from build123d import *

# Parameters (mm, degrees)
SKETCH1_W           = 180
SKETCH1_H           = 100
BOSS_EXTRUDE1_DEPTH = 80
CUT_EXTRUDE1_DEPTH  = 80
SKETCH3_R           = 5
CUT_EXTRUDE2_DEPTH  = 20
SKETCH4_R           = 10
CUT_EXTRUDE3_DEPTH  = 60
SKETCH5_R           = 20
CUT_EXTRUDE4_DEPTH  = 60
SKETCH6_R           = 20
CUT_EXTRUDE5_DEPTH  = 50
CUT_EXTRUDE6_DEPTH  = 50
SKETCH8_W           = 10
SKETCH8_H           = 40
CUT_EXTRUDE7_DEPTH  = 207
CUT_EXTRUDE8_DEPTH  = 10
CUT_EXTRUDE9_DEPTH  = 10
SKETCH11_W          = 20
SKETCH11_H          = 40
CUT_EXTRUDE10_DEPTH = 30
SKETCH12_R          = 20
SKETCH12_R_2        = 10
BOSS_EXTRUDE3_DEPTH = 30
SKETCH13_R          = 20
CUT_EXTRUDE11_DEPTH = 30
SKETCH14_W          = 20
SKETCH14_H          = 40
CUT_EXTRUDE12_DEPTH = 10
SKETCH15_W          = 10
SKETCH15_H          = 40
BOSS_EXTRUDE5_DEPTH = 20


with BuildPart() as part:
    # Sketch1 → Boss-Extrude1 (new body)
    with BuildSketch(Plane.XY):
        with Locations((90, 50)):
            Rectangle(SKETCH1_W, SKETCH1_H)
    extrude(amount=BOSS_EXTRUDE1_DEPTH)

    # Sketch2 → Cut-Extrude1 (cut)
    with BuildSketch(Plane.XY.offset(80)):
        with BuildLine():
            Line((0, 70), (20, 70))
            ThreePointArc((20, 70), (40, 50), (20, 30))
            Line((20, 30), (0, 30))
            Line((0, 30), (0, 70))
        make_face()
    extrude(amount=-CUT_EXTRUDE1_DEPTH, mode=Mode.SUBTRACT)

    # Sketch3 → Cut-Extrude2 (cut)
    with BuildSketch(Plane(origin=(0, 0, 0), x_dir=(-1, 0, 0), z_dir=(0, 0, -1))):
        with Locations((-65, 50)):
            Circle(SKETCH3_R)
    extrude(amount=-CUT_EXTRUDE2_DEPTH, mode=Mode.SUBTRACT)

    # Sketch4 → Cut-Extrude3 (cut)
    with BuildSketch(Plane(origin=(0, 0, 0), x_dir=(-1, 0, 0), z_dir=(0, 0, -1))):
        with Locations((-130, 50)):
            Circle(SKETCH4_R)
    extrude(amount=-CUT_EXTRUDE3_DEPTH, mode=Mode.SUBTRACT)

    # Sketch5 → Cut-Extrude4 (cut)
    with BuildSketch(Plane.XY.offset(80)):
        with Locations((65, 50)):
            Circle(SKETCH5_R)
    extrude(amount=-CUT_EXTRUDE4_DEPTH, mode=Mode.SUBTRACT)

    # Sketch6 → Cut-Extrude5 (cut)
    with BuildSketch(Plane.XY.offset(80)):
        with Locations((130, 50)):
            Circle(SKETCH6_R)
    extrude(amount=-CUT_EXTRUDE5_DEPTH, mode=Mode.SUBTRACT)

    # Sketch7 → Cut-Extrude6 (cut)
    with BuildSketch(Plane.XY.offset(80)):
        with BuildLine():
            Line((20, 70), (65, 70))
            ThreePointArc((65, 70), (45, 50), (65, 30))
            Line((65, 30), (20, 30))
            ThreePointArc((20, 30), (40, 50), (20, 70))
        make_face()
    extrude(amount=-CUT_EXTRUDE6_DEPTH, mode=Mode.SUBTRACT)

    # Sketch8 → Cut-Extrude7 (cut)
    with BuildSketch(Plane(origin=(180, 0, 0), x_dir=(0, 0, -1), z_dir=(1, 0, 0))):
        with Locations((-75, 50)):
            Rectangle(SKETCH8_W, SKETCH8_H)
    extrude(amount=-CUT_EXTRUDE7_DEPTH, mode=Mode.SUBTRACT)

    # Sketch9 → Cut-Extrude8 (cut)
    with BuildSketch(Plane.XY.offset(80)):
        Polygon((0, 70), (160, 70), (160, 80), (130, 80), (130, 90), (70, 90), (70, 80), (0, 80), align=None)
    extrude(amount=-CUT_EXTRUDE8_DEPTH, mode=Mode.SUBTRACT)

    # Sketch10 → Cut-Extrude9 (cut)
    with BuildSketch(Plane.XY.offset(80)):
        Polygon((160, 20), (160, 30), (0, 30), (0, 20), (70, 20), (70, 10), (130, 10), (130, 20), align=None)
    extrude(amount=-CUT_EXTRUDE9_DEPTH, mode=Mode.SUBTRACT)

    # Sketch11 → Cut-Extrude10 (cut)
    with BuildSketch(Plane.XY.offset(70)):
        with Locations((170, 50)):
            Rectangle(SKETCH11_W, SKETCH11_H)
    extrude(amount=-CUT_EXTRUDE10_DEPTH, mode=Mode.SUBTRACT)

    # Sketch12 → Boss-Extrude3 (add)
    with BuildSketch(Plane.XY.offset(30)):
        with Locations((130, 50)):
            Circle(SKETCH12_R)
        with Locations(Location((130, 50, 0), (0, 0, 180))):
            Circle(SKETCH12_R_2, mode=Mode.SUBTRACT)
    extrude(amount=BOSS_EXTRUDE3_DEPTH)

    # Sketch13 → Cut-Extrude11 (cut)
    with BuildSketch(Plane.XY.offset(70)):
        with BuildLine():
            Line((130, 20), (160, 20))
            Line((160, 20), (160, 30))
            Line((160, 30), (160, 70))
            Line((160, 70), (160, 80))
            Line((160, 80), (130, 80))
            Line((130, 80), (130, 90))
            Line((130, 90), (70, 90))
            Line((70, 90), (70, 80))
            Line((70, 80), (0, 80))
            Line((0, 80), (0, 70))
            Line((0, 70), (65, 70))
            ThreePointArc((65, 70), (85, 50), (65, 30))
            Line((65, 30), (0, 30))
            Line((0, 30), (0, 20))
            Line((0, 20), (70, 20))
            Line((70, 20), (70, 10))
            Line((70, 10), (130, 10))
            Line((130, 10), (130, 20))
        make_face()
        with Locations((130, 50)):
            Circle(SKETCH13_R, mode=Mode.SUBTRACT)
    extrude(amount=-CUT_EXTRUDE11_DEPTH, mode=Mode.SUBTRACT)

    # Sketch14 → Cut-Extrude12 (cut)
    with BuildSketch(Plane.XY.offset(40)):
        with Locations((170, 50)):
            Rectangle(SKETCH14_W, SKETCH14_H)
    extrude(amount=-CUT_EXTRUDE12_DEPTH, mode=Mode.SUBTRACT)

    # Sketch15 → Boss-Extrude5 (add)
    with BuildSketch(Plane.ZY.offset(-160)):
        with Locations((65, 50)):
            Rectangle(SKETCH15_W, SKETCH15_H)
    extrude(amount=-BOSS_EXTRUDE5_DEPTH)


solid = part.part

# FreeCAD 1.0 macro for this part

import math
import FreeCAD as App
import Part
import Sketcher
from FreeCAD import Vector

doc = App.newDocument("Part")
body = doc.addObject("PartDesign::Body", "Body")

sketch1 = doc.addObject("Sketcher::SketchObject", "Sketch")
body.addObject(sketch1)
sketch1.AttachmentSupport = (doc.XY_Plane, [""])
sketch1.MapMode = "FlatFace"
sketch1.addGeometry([
    Part.LineSegment(Vector(0, 100, 0), Vector(0, 0, 0)),
    Part.LineSegment(Vector(0, 0, 0), Vector(180, 0, 0)),
    Part.LineSegment(Vector(180, 0, 0), Vector(180, 100, 0)),
    Part.LineSegment(Vector(180, 100, 0), Vector(0, 100, 0)),
], False)
sketch1.addConstraint([
    Sketcher.Constraint("Coincident", 0, 2, 1, 1),
    Sketcher.Constraint("Coincident", 1, 2, 2, 1),
    Sketcher.Constraint("Coincident", 2, 2, 3, 1),
    Sketcher.Constraint("Coincident", 3, 2, 0, 1),
    Sketcher.Constraint("Vertical", 0),
    Sketcher.Constraint("Horizontal", 1),
    Sketcher.Constraint("Vertical", 2),
    Sketcher.Constraint("Horizontal", 3),
    Sketcher.Constraint("Coincident", 0, 2, -1, 1),
    Sketcher.Constraint("DistanceX", 1, 1, 1, 2, 180.0),
    Sketcher.Constraint("DistanceY", 0, 2, 0, 1, 100.0),
])
pad1 = doc.addObject("PartDesign::Pad", "Pad")
body.addObject(pad1)
pad1.Profile = sketch1
pad1.Length = 80

sketch2 = doc.addObject("Sketcher::SketchObject", "Sketch001")
body.addObject(sketch2)
sketch2.AttachmentSupport = (doc.XY_Plane, [""])
sketch2.MapMode = "FlatFace"
sketch2.AttachmentOffset = App.Placement(Vector(0, 0, 80), App.Rotation())
sketch2.addGeometry([
    Part.LineSegment(Vector(20, 70, 0), Vector(0, 70, 0)),
    Part.LineSegment(Vector(0, 70, 0), Vector(0, 30, 0)),
    Part.LineSegment(Vector(0, 30, 0), Vector(20, 30, 0)),
    Part.ArcOfCircle(Part.Circle(Vector(20, 50, 0), Vector(0, 0, 1), 20), math.radians(-90), math.radians(90)),
], False)
sketch2.addConstraint([
    Sketcher.Constraint("Coincident", 0, 2, 1, 1),
    Sketcher.Constraint("Coincident", 1, 2, 2, 1),
    Sketcher.Constraint("Tangent", 2, 2, 3, 1),
    Sketcher.Constraint("Tangent", 3, 2, 0, 1),
    Sketcher.Constraint("Horizontal", 0),
    Sketcher.Constraint("Vertical", 1),
    Sketcher.Constraint("Horizontal", 2),
    Sketcher.Constraint("PointOnObject", 0, 2, -2),
    Sketcher.Constraint("Radius", 3, 20.0),
    Sketcher.Constraint("DistanceX", 0, 2, 0, 1, 20.0),
    Sketcher.Constraint("DistanceY", -1, 1, 3, 3, 50.0),
])
pocket1 = doc.addObject("PartDesign::Pocket", "Pocket")
body.addObject(pocket1)
pocket1.Profile = sketch2
pocket1.Length = 80

sketch3 = doc.addObject("Sketcher::SketchObject", "Sketch002")
body.addObject(sketch3)
sketch3.AttachmentSupport = (doc.XY_Plane, [""])
sketch3.MapMode = "FlatFace"
sketch3.addGeometry(Part.Circle(Vector(65, 50, 0), Vector(0, 0, 1), 5), False)
sketch3.addConstraint([
    Sketcher.Constraint("Diameter", 0, 10.0),
    Sketcher.Constraint("DistanceX", -1, 1, 0, 3, 65.0),
    Sketcher.Constraint("DistanceY", -1, 1, 0, 3, 50.0),
])
pocket2 = doc.addObject("PartDesign::Pocket", "Pocket001")
body.addObject(pocket2)
pocket2.Profile = sketch3
pocket2.Length = 20
pocket2.Reversed = True

sketch4 = doc.addObject("Sketcher::SketchObject", "Sketch003")
body.addObject(sketch4)
sketch4.AttachmentSupport = (doc.XY_Plane, [""])
sketch4.MapMode = "FlatFace"
sketch4.addGeometry(Part.Circle(Vector(130, 50, 0), Vector(0, 0, 1), 10), False)
sketch4.addConstraint([
    Sketcher.Constraint("Diameter", 0, 20.0),
    Sketcher.Constraint("DistanceX", -1, 1, 0, 3, 130.0),
    Sketcher.Constraint("DistanceY", -1, 1, 0, 3, 50.0),
])
pocket3 = doc.addObject("PartDesign::Pocket", "Pocket002")
body.addObject(pocket3)
pocket3.Profile = sketch4
pocket3.Length = 60
pocket3.Reversed = True

sketch5 = doc.addObject("Sketcher::SketchObject", "Sketch004")
body.addObject(sketch5)
sketch5.AttachmentSupport = (doc.XY_Plane, [""])
sketch5.MapMode = "FlatFace"
sketch5.AttachmentOffset = App.Placement(Vector(0, 0, 80), App.Rotation())
sketch5.addGeometry(Part.Circle(Vector(65, 50, 0), Vector(0, 0, 1), 20), False)
sketch5.addConstraint([
    Sketcher.Constraint("Diameter", 0, 40.0),
    Sketcher.Constraint("DistanceX", -1, 1, 0, 3, 65.0),
    Sketcher.Constraint("DistanceY", -1, 1, 0, 3, 50.0),
])
pocket4 = doc.addObject("PartDesign::Pocket", "Pocket003")
body.addObject(pocket4)
pocket4.Profile = sketch5
pocket4.Length = 60

sketch6 = doc.addObject("Sketcher::SketchObject", "Sketch005")
body.addObject(sketch6)
sketch6.AttachmentSupport = (doc.XY_Plane, [""])
sketch6.MapMode = "FlatFace"
sketch6.AttachmentOffset = App.Placement(Vector(0, 0, 80), App.Rotation())
sketch6.addGeometry(Part.Circle(Vector(130, 50, 0), Vector(0, 0, 1), 20), False)
sketch6.addConstraint([
    Sketcher.Constraint("Diameter", 0, 40.0),
    Sketcher.Constraint("DistanceX", -1, 1, 0, 3, 130.0),
    Sketcher.Constraint("DistanceY", -1, 1, 0, 3, 50.0),
])
pocket5 = doc.addObject("PartDesign::Pocket", "Pocket004")
body.addObject(pocket5)
pocket5.Profile = sketch6
pocket5.Length = 50

sketch7 = doc.addObject("Sketcher::SketchObject", "Sketch006")
body.addObject(sketch7)
sketch7.AttachmentSupport = (doc.XY_Plane, [""])
sketch7.MapMode = "FlatFace"
sketch7.AttachmentOffset = App.Placement(Vector(0, 0, 80), App.Rotation())
sketch7.addGeometry([
    Part.LineSegment(Vector(65, 70, 0), Vector(20, 70, 0)),
    Part.ArcOfCircle(Part.Circle(Vector(20, 50, 0), Vector(0, 0, 1), 20), math.radians(-90), math.radians(90)),
    Part.LineSegment(Vector(20, 30, 0), Vector(65, 30, 0)),
    Part.ArcOfCircle(Part.Circle(Vector(65, 50, 0), Vector(0, 0, 1), 20), math.radians(90), math.radians(270)),
], False)
sketch7.addConstraint([
    Sketcher.Constraint("Tangent", 0, 2, 1, 2),
    Sketcher.Constraint("Tangent", 1, 1, 2, 1),
    Sketcher.Constraint("Tangent", 2, 2, 3, 2),
    Sketcher.Constraint("Tangent", 3, 1, 0, 1),
    Sketcher.Constraint("Horizontal", 0),
    Sketcher.Constraint("Horizontal", 2),
    Sketcher.Constraint("Radius", 1, 20.0),
    Sketcher.Constraint("DistanceX", 0, 2, 0, 1, 45.0),
    Sketcher.Constraint("DistanceX", -1, 1, 1, 3, 20.0),
    Sketcher.Constraint("DistanceY", -1, 1, 1, 3, 50.0),
])
pocket6 = doc.addObject("PartDesign::Pocket", "Pocket005")
body.addObject(pocket6)
pocket6.Profile = sketch7
pocket6.Length = 50

sketch8 = doc.addObject("Sketcher::SketchObject", "Sketch007")
body.addObject(sketch8)
sketch8.AttachmentSupport = (doc.YZ_Plane, [""])
sketch8.MapMode = "FlatFace"
sketch8.AttachmentOffset = App.Placement(Vector(0, 0, 180), App.Rotation())
sketch8.addGeometry([
    Part.LineSegment(Vector(70, 80, 0), Vector(30, 80, 0)),
    Part.LineSegment(Vector(30, 80, 0), Vector(30, 70, 0)),
    Part.LineSegment(Vector(30, 70, 0), Vector(70, 70, 0)),
    Part.LineSegment(Vector(70, 70, 0), Vector(70, 80, 0)),
], False)
sketch8.addConstraint([
    Sketcher.Constraint("Coincident", 0, 2, 1, 1),
    Sketcher.Constraint("Coincident", 1, 2, 2, 1),
    Sketcher.Constraint("Coincident", 2, 2, 3, 1),
    Sketcher.Constraint("Coincident", 3, 2, 0, 1),
    Sketcher.Constraint("Horizontal", 0),
    Sketcher.Constraint("Vertical", 1),
    Sketcher.Constraint("Horizontal", 2),
    Sketcher.Constraint("Vertical", 3),
    Sketcher.Constraint("DistanceX", 0, 2, 0, 1, 40.0),
    Sketcher.Constraint("DistanceY", 1, 2, 1, 1, 10.0),
    Sketcher.Constraint("DistanceX", -1, 1, 0, 2, 30.0),
    Sketcher.Constraint("DistanceY", -1, 1, 0, 2, 80.0),
])
pocket7 = doc.addObject("PartDesign::Pocket", "Pocket006")
body.addObject(pocket7)
pocket7.Profile = sketch8
pocket7.Length = 207

sketch9 = doc.addObject("Sketcher::SketchObject", "Sketch008")
body.addObject(sketch9)
sketch9.AttachmentSupport = (doc.XY_Plane, [""])
sketch9.MapMode = "FlatFace"
sketch9.AttachmentOffset = App.Placement(Vector(0, 0, 80), App.Rotation())
sketch9.addGeometry([
    Part.LineSegment(Vector(0, 70, 0), Vector(160, 70, 0)),
    Part.LineSegment(Vector(160, 70, 0), Vector(160, 80, 0)),
    Part.LineSegment(Vector(160, 80, 0), Vector(130, 80, 0)),
    Part.LineSegment(Vector(130, 80, 0), Vector(130, 90, 0)),
    Part.LineSegment(Vector(130, 90, 0), Vector(70, 90, 0)),
    Part.LineSegment(Vector(70, 90, 0), Vector(70, 80, 0)),
    Part.LineSegment(Vector(70, 80, 0), Vector(0, 80, 0)),
    Part.LineSegment(Vector(0, 80, 0), Vector(0, 70, 0)),
], False)
sketch9.addConstraint([
    Sketcher.Constraint("Coincident", 0, 2, 1, 1),
    Sketcher.Constraint("Coincident", 1, 2, 2, 1),
    Sketcher.Constraint("Coincident", 2, 2, 3, 1),
    Sketcher.Constraint("Coincident", 3, 2, 4, 1),
    Sketcher.Constraint("Coincident", 4, 2, 5, 1),
    Sketcher.Constraint("Coincident", 5, 2, 6, 1),
    Sketcher.Constraint("Coincident", 6, 2, 7, 1),
    Sketcher.Constraint("Coincident", 7, 2, 0, 1),
    Sketcher.Constraint("Horizontal", 0),
    Sketcher.Constraint("Vertical", 1),
    Sketcher.Constraint("Horizontal", 2),
    Sketcher.Constraint("Vertical", 3),
    Sketcher.Constraint("Horizontal", 4),
    Sketcher.Constraint("Vertical", 5),
    Sketcher.Constraint("Horizontal", 6),
    Sketcher.Constraint("Vertical", 7),
    Sketcher.Constraint("PointOnObject", 6, 2, -2),
    Sketcher.Constraint("Horizontal", 2, 2, 5, 2),
    Sketcher.Constraint("Equal", 1, 3),
    Sketcher.Constraint("DistanceX", 0, 1, 0, 2, 160.0),
    Sketcher.Constraint("DistanceX", 2, 2, 2, 1, 30.0),
    Sketcher.Constraint("DistanceX", 4, 2, 4, 1, 60.0),
    Sketcher.Constraint("DistanceY", 1, 1, 1, 2, 10.0),
    Sketcher.Constraint("DistanceY", -1, 1, 0, 2, 70.0),
])
pocket8 = doc.addObject("PartDesign::Pocket", "Pocket007")
body.addObject(pocket8)
pocket8.Profile = sketch9
pocket8.Length = 10

sketch10 = doc.addObject("Sketcher::SketchObject", "Sketch009")
body.addObject(sketch10)
sketch10.AttachmentSupport = (doc.XY_Plane, [""])
sketch10.MapMode = "FlatFace"
sketch10.AttachmentOffset = App.Placement(Vector(0, 0, 80), App.Rotation())
sketch10.addGeometry([
    Part.LineSegment(Vector(160, 20, 0), Vector(160, 30, 0)),
    Part.LineSegment(Vector(160, 30, 0), Vector(0, 30, 0)),
    Part.LineSegment(Vector(0, 30, 0), Vector(0, 20, 0)),
    Part.LineSegment(Vector(0, 20, 0), Vector(70, 20, 0)),
    Part.LineSegment(Vector(70, 20, 0), Vector(70, 10, 0)),
    Part.LineSegment(Vector(70, 10, 0), Vector(130, 10, 0)),
    Part.LineSegment(Vector(130, 10, 0), Vector(130, 20, 0)),
    Part.LineSegment(Vector(130, 20, 0), Vector(160, 20, 0)),
], False)
sketch10.addConstraint([
    Sketcher.Constraint("Coincident", 0, 2, 1, 1),
    Sketcher.Constraint("Coincident", 1, 2, 2, 1),
    Sketcher.Constraint("Coincident", 2, 2, 3, 1),
    Sketcher.Constraint("Coincident", 3, 2, 4, 1),
    Sketcher.Constraint("Coincident", 4, 2, 5, 1),
    Sketcher.Constraint("Coincident", 5, 2, 6, 1),
    Sketcher.Constraint("Coincident", 6, 2, 7, 1),
    Sketcher.Constraint("Coincident", 7, 2, 0, 1),
    Sketcher.Constraint("Vertical", 0),
    Sketcher.Constraint("Horizontal", 1),
    Sketcher.Constraint("Vertical", 2),
    Sketcher.Constraint("Horizontal", 3),
    Sketcher.Constraint("Vertical", 4),
    Sketcher.Constraint("Horizontal", 5),
    Sketcher.Constraint("Vertical", 6),
    Sketcher.Constraint("Horizontal", 7),
    Sketcher.Constraint("PointOnObject", 1, 2, -2),
    Sketcher.Constraint("Horizontal", 3, 2, 6, 2),
    Sketcher.Constraint("Equal", 2, 4),
    Sketcher.Constraint("DistanceX", 1, 2, 1, 1, 160.0),
    Sketcher.Constraint("DistanceX", 3, 1, 3, 2, 70.0),
    Sketcher.Constraint("DistanceX", 5, 1, 5, 2, 60.0),
    Sketcher.Constraint("DistanceY", 0, 1, 0, 2, 10.0),
    Sketcher.Constraint("DistanceY", -1, 1, 0, 2, 30.0),
])
pocket9 = doc.addObject("PartDesign::Pocket", "Pocket008")
body.addObject(pocket9)
pocket9.Profile = sketch10
pocket9.Length = 10

sketch11 = doc.addObject("Sketcher::SketchObject", "Sketch010")
body.addObject(sketch11)
sketch11.AttachmentSupport = (doc.XY_Plane, [""])
sketch11.MapMode = "FlatFace"
sketch11.AttachmentOffset = App.Placement(Vector(0, 0, 70), App.Rotation())
sketch11.addGeometry([
    Part.LineSegment(Vector(160, 70, 0), Vector(160, 30, 0)),
    Part.LineSegment(Vector(160, 30, 0), Vector(180, 30, 0)),
    Part.LineSegment(Vector(180, 30, 0), Vector(180, 70, 0)),
    Part.LineSegment(Vector(180, 70, 0), Vector(160, 70, 0)),
], False)
sketch11.addConstraint([
    Sketcher.Constraint("Coincident", 0, 2, 1, 1),
    Sketcher.Constraint("Coincident", 1, 2, 2, 1),
    Sketcher.Constraint("Coincident", 2, 2, 3, 1),
    Sketcher.Constraint("Coincident", 3, 2, 0, 1),
    Sketcher.Constraint("Vertical", 0),
    Sketcher.Constraint("Horizontal", 1),
    Sketcher.Constraint("Vertical", 2),
    Sketcher.Constraint("Horizontal", 3),
    Sketcher.Constraint("DistanceX", 1, 1, 1, 2, 20.0),
    Sketcher.Constraint("DistanceY", 0, 2, 0, 1, 40.0),
    Sketcher.Constraint("DistanceX", -1, 1, 0, 2, 160.0),
    Sketcher.Constraint("DistanceY", -1, 1, 0, 2, 30.0),
])
pocket10 = doc.addObject("PartDesign::Pocket", "Pocket009")
body.addObject(pocket10)
pocket10.Profile = sketch11
pocket10.Length = 30

sketch12 = doc.addObject("Sketcher::SketchObject", "Sketch011")
body.addObject(sketch12)
sketch12.AttachmentSupport = (doc.XY_Plane, [""])
sketch12.MapMode = "FlatFace"
sketch12.AttachmentOffset = App.Placement(Vector(0, 0, 30), App.Rotation())
sketch12.addGeometry([
    Part.Circle(Vector(130, 50, 0), Vector(0, 0, 1), 20),
    Part.Circle(Vector(130, 50, 0), Vector(0, 0, 1), 10),
], False)
sketch12.addConstraint([
    Sketcher.Constraint("Coincident", 1, 3, 0, 3),
    Sketcher.Constraint("Diameter", 0, 40.0),
    Sketcher.Constraint("Diameter", 1, 20.0),
    Sketcher.Constraint("DistanceX", -1, 1, 0, 3, 130.0),
    Sketcher.Constraint("DistanceY", -1, 1, 0, 3, 50.0),
])
pad2 = doc.addObject("PartDesign::Pad", "Pad001")
body.addObject(pad2)
pad2.Profile = sketch12
pad2.Length = 30

sketch13 = doc.addObject("Sketcher::SketchObject", "Sketch012")
body.addObject(sketch13)
sketch13.AttachmentSupport = (doc.XY_Plane, [""])
sketch13.MapMode = "FlatFace"
sketch13.AttachmentOffset = App.Placement(Vector(0, 0, 70), App.Rotation())
sketch13.addGeometry([
    Part.LineSegment(Vector(130, 20, 0), Vector(160, 20, 0)),
    Part.LineSegment(Vector(160, 20, 0), Vector(160, 80, 0)),
    Part.LineSegment(Vector(160, 80, 0), Vector(130, 80, 0)),
    Part.LineSegment(Vector(130, 80, 0), Vector(130, 90, 0)),
    Part.LineSegment(Vector(130, 90, 0), Vector(70, 90, 0)),
    Part.LineSegment(Vector(70, 90, 0), Vector(70, 80, 0)),
    Part.LineSegment(Vector(70, 80, 0), Vector(0, 80, 0)),
    Part.LineSegment(Vector(0, 80, 0), Vector(0, 70, 0)),
    Part.LineSegment(Vector(0, 70, 0), Vector(65, 70, 0)),
    Part.ArcOfCircle(Part.Circle(Vector(65, 50, 0), Vector(0, 0, 1), 20), math.radians(-90), math.radians(90)),
    Part.LineSegment(Vector(65, 30, 0), Vector(0, 30, 0)),
    Part.LineSegment(Vector(0, 30, 0), Vector(0, 20, 0)),
    Part.LineSegment(Vector(0, 20, 0), Vector(70, 20, 0)),
    Part.LineSegment(Vector(70, 20, 0), Vector(70, 10, 0)),
    Part.LineSegment(Vector(70, 10, 0), Vector(130, 10, 0)),
    Part.LineSegment(Vector(130, 10, 0), Vector(130, 20, 0)),
    Part.Circle(Vector(130, 50, 0), Vector(0, 0, 1), 20),
], False)
sketch13.addConstraint([
    Sketcher.Constraint("Coincident", 0, 2, 1, 1),
    Sketcher.Constraint("Coincident", 1, 2, 2, 1),
    Sketcher.Constraint("Coincident", 2, 2, 3, 1),
    Sketcher.Constraint("Coincident", 3, 2, 4, 1),
    Sketcher.Constraint("Coincident", 4, 2, 5, 1),
    Sketcher.Constraint("Coincident", 5, 2, 6, 1),
    Sketcher.Constraint("Coincident", 6, 2, 7, 1),
    Sketcher.Constraint("Coincident", 7, 2, 8, 1),
    Sketcher.Constraint("Tangent", 8, 2, 9, 2),
    Sketcher.Constraint("Tangent", 9, 1, 10, 1),
    Sketcher.Constraint("Coincident", 10, 2, 11, 1),
    Sketcher.Constraint("Coincident", 11, 2, 12, 1),
    Sketcher.Constraint("Coincident", 12, 2, 13, 1),
    Sketcher.Constraint("Coincident", 13, 2, 14, 1),
    Sketcher.Constraint("Coincident", 14, 2, 15, 1),
    Sketcher.Constraint("Coincident", 15, 2, 0, 1),
    Sketcher.Constraint("Horizontal", 0),
    Sketcher.Constraint("Vertical", 1),
    Sketcher.Constraint("Horizontal", 2),
    Sketcher.Constraint("Vertical", 3),
    Sketcher.Constraint("Horizontal", 4),
    Sketcher.Constraint("Vertical", 5),
    Sketcher.Constraint("Horizontal", 6),
    Sketcher.Constraint("Vertical", 7),
    Sketcher.Constraint("Horizontal", 8),
    Sketcher.Constraint("Horizontal", 10),
    Sketcher.Constraint("Vertical", 11),
    Sketcher.Constraint("Horizontal", 12),
    Sketcher.Constraint("Vertical", 13),
    Sketcher.Constraint("Horizontal", 14),
    Sketcher.Constraint("Vertical", 15),
    Sketcher.Constraint("Equal", 9, 16),
    Sketcher.Constraint("PointOnObject", 6, 2, -2),
    Sketcher.Constraint("PointOnObject", 10, 2, -2),
    Sketcher.Constraint("Horizontal", 9, 3, 16, 3),
    Sketcher.Constraint("Horizontal", 2, 2, 5, 2),
    Sketcher.Constraint("Horizontal", 0, 2, 11, 2),
    Sketcher.Constraint("Vertical", 16, 3, 2, 2),
    Sketcher.Constraint("Vertical", 5, 2, 12, 2),
    Sketcher.Constraint("Vertical", 3, 2, 14, 2),
    Sketcher.Constraint("Equal", 14, 1),
    Sketcher.Constraint("Equal", 5, 7),
    Sketcher.Constraint("Equal", 7, 11),
    Sketcher.Constraint("Equal", 11, 13),
    Sketcher.Constraint("Diameter", 16, 40.0),
    Sketcher.Constraint("DistanceX", 0, 1, 0, 2, 30.0),
    Sketcher.Constraint("DistanceX", 4, 2, 4, 1, 60.0),
    Sketcher.Constraint("DistanceX", 6, 2, 6, 1, 70.0),
    Sketcher.Constraint("DistanceX", 8, 1, 8, 2, 65.0),
    Sketcher.Constraint("DistanceY", -1, 1, 9, 3, 50.0),
])
pocket11 = doc.addObject("PartDesign::Pocket", "Pocket010")
body.addObject(pocket11)
pocket11.Profile = sketch13
pocket11.Length = 30

sketch14 = doc.addObject("Sketcher::SketchObject", "Sketch013")
body.addObject(sketch14)
sketch14.AttachmentSupport = (doc.XY_Plane, [""])
sketch14.MapMode = "FlatFace"
sketch14.AttachmentOffset = App.Placement(Vector(0, 0, 40), App.Rotation())
sketch14.addGeometry([
    Part.LineSegment(Vector(160, 70, 0), Vector(160, 30, 0)),
    Part.LineSegment(Vector(160, 30, 0), Vector(180, 30, 0)),
    Part.LineSegment(Vector(180, 30, 0), Vector(180, 70, 0)),
    Part.LineSegment(Vector(180, 70, 0), Vector(160, 70, 0)),
], False)
sketch14.addConstraint([
    Sketcher.Constraint("Coincident", 0, 2, 1, 1),
    Sketcher.Constraint("Coincident", 1, 2, 2, 1),
    Sketcher.Constraint("Coincident", 2, 2, 3, 1),
    Sketcher.Constraint("Coincident", 3, 2, 0, 1),
    Sketcher.Constraint("Vertical", 0),
    Sketcher.Constraint("Horizontal", 1),
    Sketcher.Constraint("Vertical", 2),
    Sketcher.Constraint("Horizontal", 3),
    Sketcher.Constraint("DistanceX", 1, 1, 1, 2, 20.0),
    Sketcher.Constraint("DistanceY", 0, 2, 0, 1, 40.0),
    Sketcher.Constraint("DistanceX", -1, 1, 0, 2, 160.0),
    Sketcher.Constraint("DistanceY", -1, 1, 0, 2, 30.0),
])
pocket12 = doc.addObject("PartDesign::Pocket", "Pocket011")
body.addObject(pocket12)
pocket12.Profile = sketch14
pocket12.Length = 10

sketch15 = doc.addObject("Sketcher::SketchObject", "Sketch014")
body.addObject(sketch15)
sketch15.AttachmentSupport = (doc.YZ_Plane, [""])
sketch15.MapMode = "FlatFace"
sketch15.AttachmentOffset = App.Placement(Vector(0, 0, 160), App.Rotation())
sketch15.addGeometry([
    Part.LineSegment(Vector(70, 60, 0), Vector(30, 60, 0)),
    Part.LineSegment(Vector(30, 60, 0), Vector(30, 70, 0)),
    Part.LineSegment(Vector(30, 70, 0), Vector(70, 70, 0)),
    Part.LineSegment(Vector(70, 70, 0), Vector(70, 60, 0)),
], False)
sketch15.addConstraint([
    Sketcher.Constraint("Coincident", 0, 2, 1, 1),
    Sketcher.Constraint("Coincident", 1, 2, 2, 1),
    Sketcher.Constraint("Coincident", 2, 2, 3, 1),
    Sketcher.Constraint("Coincident", 3, 2, 0, 1),
    Sketcher.Constraint("Horizontal", 0),
    Sketcher.Constraint("Vertical", 1),
    Sketcher.Constraint("Horizontal", 2),
    Sketcher.Constraint("Vertical", 3),
    Sketcher.Constraint("DistanceX", 0, 2, 0, 1, 40.0),
    Sketcher.Constraint("DistanceY", 1, 1, 1, 2, 10.0),
    Sketcher.Constraint("DistanceX", -1, 1, 0, 2, 30.0),
    Sketcher.Constraint("DistanceY", -1, 1, 0, 2, 60.0),
])
pad3 = doc.addObject("PartDesign::Pad", "Pad002")
body.addObject(pad3)
pad3.Profile = sketch15
pad3.Length = 20

doc.recompute()
